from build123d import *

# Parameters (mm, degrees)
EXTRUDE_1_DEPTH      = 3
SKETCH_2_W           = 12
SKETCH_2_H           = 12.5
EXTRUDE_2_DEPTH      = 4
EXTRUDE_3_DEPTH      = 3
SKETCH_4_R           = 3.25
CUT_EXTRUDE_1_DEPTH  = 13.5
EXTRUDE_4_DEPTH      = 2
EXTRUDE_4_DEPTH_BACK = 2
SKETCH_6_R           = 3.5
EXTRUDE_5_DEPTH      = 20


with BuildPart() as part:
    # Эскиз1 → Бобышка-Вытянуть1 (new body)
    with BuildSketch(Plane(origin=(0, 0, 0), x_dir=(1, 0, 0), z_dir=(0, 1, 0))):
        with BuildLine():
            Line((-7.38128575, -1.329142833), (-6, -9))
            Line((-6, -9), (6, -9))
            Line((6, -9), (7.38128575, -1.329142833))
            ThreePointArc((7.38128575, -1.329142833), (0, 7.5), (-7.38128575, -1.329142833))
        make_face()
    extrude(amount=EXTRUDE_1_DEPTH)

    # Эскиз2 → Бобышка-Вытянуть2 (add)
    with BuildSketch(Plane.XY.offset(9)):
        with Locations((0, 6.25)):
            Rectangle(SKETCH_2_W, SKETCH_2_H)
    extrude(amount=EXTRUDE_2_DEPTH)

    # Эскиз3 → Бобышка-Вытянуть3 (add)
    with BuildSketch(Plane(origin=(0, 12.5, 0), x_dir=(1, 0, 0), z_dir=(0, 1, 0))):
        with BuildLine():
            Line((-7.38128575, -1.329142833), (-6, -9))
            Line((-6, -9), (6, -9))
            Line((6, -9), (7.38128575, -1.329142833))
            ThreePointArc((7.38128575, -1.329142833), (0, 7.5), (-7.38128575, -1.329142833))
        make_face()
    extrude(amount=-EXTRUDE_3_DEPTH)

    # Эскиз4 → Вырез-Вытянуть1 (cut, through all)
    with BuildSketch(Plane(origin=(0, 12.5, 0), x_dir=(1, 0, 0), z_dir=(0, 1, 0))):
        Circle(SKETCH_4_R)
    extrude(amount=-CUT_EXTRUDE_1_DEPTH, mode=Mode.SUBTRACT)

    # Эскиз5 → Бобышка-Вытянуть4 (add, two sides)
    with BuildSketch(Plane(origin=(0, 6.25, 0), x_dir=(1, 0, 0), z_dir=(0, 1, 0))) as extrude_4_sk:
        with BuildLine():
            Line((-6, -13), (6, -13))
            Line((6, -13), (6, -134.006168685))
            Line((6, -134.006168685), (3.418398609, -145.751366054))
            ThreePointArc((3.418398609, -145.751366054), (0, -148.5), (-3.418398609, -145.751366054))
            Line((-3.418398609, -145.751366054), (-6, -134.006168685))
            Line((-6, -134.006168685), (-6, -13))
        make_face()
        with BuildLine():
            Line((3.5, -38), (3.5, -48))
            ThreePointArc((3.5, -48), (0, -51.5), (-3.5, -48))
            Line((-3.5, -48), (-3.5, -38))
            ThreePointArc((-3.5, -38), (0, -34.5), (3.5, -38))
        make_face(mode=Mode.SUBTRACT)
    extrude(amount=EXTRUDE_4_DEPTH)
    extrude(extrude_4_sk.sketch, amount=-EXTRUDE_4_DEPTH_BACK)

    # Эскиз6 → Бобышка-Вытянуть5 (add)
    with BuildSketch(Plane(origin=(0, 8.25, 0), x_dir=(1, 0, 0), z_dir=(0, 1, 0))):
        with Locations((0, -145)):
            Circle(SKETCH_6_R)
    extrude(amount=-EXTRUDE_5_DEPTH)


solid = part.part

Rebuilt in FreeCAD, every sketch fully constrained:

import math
import FreeCAD as App
import Part
import Sketcher
Q = App.Units.Quantity


def add_polygon(sketch, points):
    """Adds a closed chain of lines whose ends are joined by coincident constraints."""
    first, n = sketch.GeometryCount, len(points)
    for a, b in zip(points, points[1:] + points[:1]):
        sketch.addGeometry(Part.LineSegment(App.Vector(*a, 0), App.Vector(*b, 0)), False)
    for i in range(n):
        sketch.addConstraint(Sketcher.Constraint("Coincident", first + i, 2, first + (i + 1) % n, 1))

doc = App.newDocument("Part")
body = doc.addObject("PartDesign::Body", "Body")

# Sketch on XZ plane
sketch1 = doc.addObject("Sketcher::SketchObject", "Sketch")
body.addObject(sketch1)
sketch1.AttachmentSupport = (doc.XZ_Plane, [""])
sketch1.MapMode = "FlatFace"
sketch1.addGeometry([
    Part.LineSegment(App.Vector(-7.381286, 1.329143, 0), App.Vector(-6, 9, 0)),
    Part.LineSegment(App.Vector(-6, 9, 0), App.Vector(6, 9, 0)),
    Part.LineSegment(App.Vector(6, 9, 0), App.Vector(7.381286, 1.329143, 0)),
    Part.ArcOfCircle(Part.Circle(App.Vector(0, 0, 0), App.Vector(0, 0, 1), 7.5), math.radians(169.792181), math.radians(370.207819)),
], False)
sketch1.addConstraint([
    Sketcher.Constraint("Coincident", 0, 2, 1, 1),
    Sketcher.Constraint("Coincident", 1, 2, 2, 1),
    Sketcher.Constraint("Tangent", 2, 2, 3, 2),
    Sketcher.Constraint("Tangent", 3, 1, 0, 1),
    Sketcher.Constraint("Horizontal", 1),
    Sketcher.Constraint("Coincident", 3, 3, -1, 1),
    Sketcher.Constraint("Horizontal", 2, 2, 3, 1),
    Sketcher.Constraint("Radius", 3, Q("7.5 mm")),
    Sketcher.Constraint("DistanceX", 1, 1, 1, 2, Q("12 mm")),
    Sketcher.Constraint("DistanceY", -1, 1, 0, 2, Q("9 mm")),
])
pad1 = doc.addObject("PartDesign::Pad", "Pad")
body.addObject(pad1)
pad1.Profile = sketch1
pad1.Length = 3
pad1.Reversed = True

# Sketch on XY plane
sketch2 = doc.addObject("Sketcher::SketchObject", "Sketch001")
body.addObject(sketch2)
sketch2.AttachmentSupport = (doc.XY_Plane, [""])
sketch2.MapMode = "FlatFace"
sketch2.AttachmentOffset = App.Placement(App.Vector(0, 0, 9), App.Rotation())
add_polygon(sketch2, [(-6, 12.5), (-6, 0), (6, 0), (6, 12.5)])  # lines 0-3
sketch2.addConstraint([
    Sketcher.Constraint("Vertical", 0),
    Sketcher.Constraint("Horizontal", 1),
    Sketcher.Constraint("Vertical", 2),
    Sketcher.Constraint("Horizontal", 3),
    Sketcher.Constraint("Symmetric", 0, 2, 1, 2, -1, 1),
    Sketcher.Constraint("DistanceX", 1, 1, 1, 2, Q("12 mm")),
    Sketcher.Constraint("DistanceY", 0, 2, 0, 1, Q("12.5 mm")),
])
pad2 = doc.addObject("PartDesign::Pad", "Pad001")
body.addObject(pad2)
pad2.Profile = sketch2
pad2.Length = 4

# Sketch on XZ plane
sketch3 = doc.addObject("Sketcher::SketchObject", "Sketch002")
body.addObject(sketch3)
sketch3.AttachmentSupport = (doc.XZ_Plane, [""])
sketch3.MapMode = "FlatFace"
sketch3.AttachmentOffset = App.Placement(App.Vector(0, 0, -12.5), App.Rotation())
sketch3.addGeometry([
    Part.LineSegment(App.Vector(-7.381286, 1.329143, 0), App.Vector(-6, 9, 0)),
    Part.LineSegment(App.Vector(-6, 9, 0), App.Vector(6, 9, 0)),
    Part.LineSegment(App.Vector(6, 9, 0), App.Vector(7.381286, 1.329143, 0)),
    Part.ArcOfCircle(Part.Circle(App.Vector(0, 0, 0), App.Vector(0, 0, 1), 7.5), math.radians(169.792181), math.radians(370.207819)),
], False)
sketch3.addConstraint([
    Sketcher.Constraint("Coincident", 0, 2, 1, 1),
    Sketcher.Constraint("Coincident", 1, 2, 2, 1),
    Sketcher.Constraint("Tangent", 2, 2, 3, 2),
    Sketcher.Constraint("Tangent", 3, 1, 0, 1),
    Sketcher.Constraint("Horizontal", 1),
    Sketcher.Constraint("Coincident", 3, 3, -1, 1),
    Sketcher.Constraint("Horizontal", 2, 2, 3, 1),
    Sketcher.Constraint("Radius", 3, Q("7.5 mm")),
    Sketcher.Constraint("DistanceX", 1, 1, 1, 2, Q("12 mm")),
    Sketcher.Constraint("DistanceY", -1, 1, 0, 2, Q("9 mm")),
])
pad3 = doc.addObject("PartDesign::Pad", "Pad002")
body.addObject(pad3)
pad3.Profile = sketch3
pad3.Length = 3

# Sketch on XZ plane
sketch4 = doc.addObject("Sketcher::SketchObject", "Sketch003")
body.addObject(sketch4)
sketch4.AttachmentSupport = (doc.XZ_Plane, [""])
sketch4.MapMode = "FlatFace"
sketch4.AttachmentOffset = App.Placement(App.Vector(0, 0, -12.5), App.Rotation())
sketch4.addGeometry(Part.Circle(App.Vector(0, 0, 0), App.Vector(0, 0, 1), 3.25), False)
sketch4.addConstraint([
    Sketcher.Constraint("Coincident", 0, 3, -1, 1),
    Sketcher.Constraint("Diameter", 0, Q("6.5 mm")),
])
pocket1 = doc.addObject("PartDesign::Pocket", "Pocket")
body.addObject(pocket1)
pocket1.Profile = sketch4
pocket1.Type = "ThroughAll"
pocket1.Reversed = True

# Sketch on XZ plane
sketch5 = doc.addObject("Sketcher::SketchObject", "Sketch004")
body.addObject(sketch5)
sketch5.AttachmentSupport = (doc.XZ_Plane, [""])
sketch5.MapMode = "FlatFace"
sketch5.AttachmentOffset = App.Placement(App.Vector(0, 0, -6.25), App.Rotation())
sketch5.addGeometry([
    Part.LineSegment(App.Vector(6, 13, 0), App.Vector(-6, 13, 0)),  # 0
    Part.LineSegment(App.Vector(-6, 13, 0), App.Vector(-6, 134.006169, 0)),  # 1
    Part.LineSegment(App.Vector(-6, 134.006169, 0), App.Vector(-3.418399, 145.751366, 0)),  # 2
    Part.ArcOfCircle(Part.Circle(App.Vector(0, 145, 0), App.Vector(0, 0, 1), 3.5), math.radians(12.396521), math.radians(167.603479)),  # 3
    Part.LineSegment(App.Vector(3.418399, 145.751366, 0), App.Vector(6, 134.006169, 0)),  # 4
    Part.LineSegment(App.Vector(6, 134.006169, 0), App.Vector(6, 13, 0)),  # 5
    Part.LineSegment(App.Vector(3.5, 38, 0), App.Vector(3.5, 48, 0)),  # 6
    Part.ArcOfCircle(Part.Circle(App.Vector(0, 48, 0), App.Vector(0, 0, 1), 3.5), math.radians(0), math.radians(180)),  # 7
    Part.LineSegment(App.Vector(-3.5, 48, 0), App.Vector(-3.5, 38, 0)),  # 8
    Part.ArcOfCircle(Part.Circle(App.Vector(0, 38, 0), App.Vector(0, 0, 1), 3.5), math.radians(180), math.radians(360)),  # 9
], False)
sketch5.addConstraint([
    Sketcher.Constraint("Coincident", 0, 2, 1, 1),
    Sketcher.Constraint("Coincident", 1, 2, 2, 1),
    Sketcher.Constraint("Tangent", 2, 2, 3, 2),
    Sketcher.Constraint("Tangent", 3, 1, 4, 1),
    Sketcher.Constraint("Coincident", 4, 2, 5, 1),
    Sketcher.Constraint("Coincident", 5, 2, 0, 1),
    Sketcher.Constraint("Tangent", 6, 2, 7, 1),
    Sketcher.Constraint("Tangent", 7, 2, 8, 1),
    Sketcher.Constraint("Tangent", 8, 2, 9, 1),
    Sketcher.Constraint("Tangent", 9, 2, 6, 1),
    Sketcher.Constraint("Horizontal", 0),
    Sketcher.Constraint("Vertical", 1),
    Sketcher.Constraint("Vertical", 5),
    Sketcher.Constraint("Vertical", 6),
    Sketcher.Constraint("Vertical", 8),
    Sketcher.Constraint("Equal", 3, 7),
    Sketcher.Constraint("Symmetric", 2, 2, 3, 1, -2),
    Sketcher.Constraint("PointOnObject", 7, 3, -2),
    Sketcher.Constraint("Horizontal", 1, 2, 4, 2),
    Sketcher.Constraint("Radius", 3, Q("3.5 mm")),
    Sketcher.Constraint("DistanceX", 0, 2, 0, 1, Q("12 mm")),
    Sketcher.Constraint("DistanceY", 6, 1, 6, 2, Q("10 mm")),
    Sketcher.Constraint("DistanceY", -1, 1, 3, 3, Q("145 mm")),
    Sketcher.Constraint("DistanceY", -1, 1, 7, 3, Q("48 mm")),
    Sketcher.Constraint("DistanceY", -1, 1, 0, 2, Q("13 mm")),
    Sketcher.Constraint("DistanceY", 1, 1, 1, 2, Q("121.006169 mm")),
])
pad4 = doc.addObject("PartDesign::Pad", "Pad003")
body.addObject(pad4)
pad4.Profile = sketch5
pad4.Type = "TwoLengths"
pad4.Length = 2
pad4.Length2 = 2
pad4.Reversed = True

# Sketch on XZ plane
sketch6 = doc.addObject("Sketcher::SketchObject", "Sketch005")
body.addObject(sketch6)
sketch6.AttachmentSupport = (doc.XZ_Plane, [""])
sketch6.MapMode = "FlatFace"
sketch6.AttachmentOffset = App.Placement(App.Vector(0, 0, -8.25), App.Rotation())
sketch6.addGeometry(Part.Circle(App.Vector(0, 145, 0), App.Vector(0, 0, 1), 3.5), False)
sketch6.addConstraint([
    Sketcher.Constraint("PointOnObject", 0, 3, -2),
    Sketcher.Constraint("Diameter", 0, Q("7 mm")),
    Sketcher.Constraint("DistanceY", -1, 1, 0, 3, Q("145 mm")),
])
pad5 = doc.addObject("PartDesign::Pad", "Pad004")
body.addObject(pad5)
pad5.Profile = sketch6
pad5.Length = 20

doc.recompute()
